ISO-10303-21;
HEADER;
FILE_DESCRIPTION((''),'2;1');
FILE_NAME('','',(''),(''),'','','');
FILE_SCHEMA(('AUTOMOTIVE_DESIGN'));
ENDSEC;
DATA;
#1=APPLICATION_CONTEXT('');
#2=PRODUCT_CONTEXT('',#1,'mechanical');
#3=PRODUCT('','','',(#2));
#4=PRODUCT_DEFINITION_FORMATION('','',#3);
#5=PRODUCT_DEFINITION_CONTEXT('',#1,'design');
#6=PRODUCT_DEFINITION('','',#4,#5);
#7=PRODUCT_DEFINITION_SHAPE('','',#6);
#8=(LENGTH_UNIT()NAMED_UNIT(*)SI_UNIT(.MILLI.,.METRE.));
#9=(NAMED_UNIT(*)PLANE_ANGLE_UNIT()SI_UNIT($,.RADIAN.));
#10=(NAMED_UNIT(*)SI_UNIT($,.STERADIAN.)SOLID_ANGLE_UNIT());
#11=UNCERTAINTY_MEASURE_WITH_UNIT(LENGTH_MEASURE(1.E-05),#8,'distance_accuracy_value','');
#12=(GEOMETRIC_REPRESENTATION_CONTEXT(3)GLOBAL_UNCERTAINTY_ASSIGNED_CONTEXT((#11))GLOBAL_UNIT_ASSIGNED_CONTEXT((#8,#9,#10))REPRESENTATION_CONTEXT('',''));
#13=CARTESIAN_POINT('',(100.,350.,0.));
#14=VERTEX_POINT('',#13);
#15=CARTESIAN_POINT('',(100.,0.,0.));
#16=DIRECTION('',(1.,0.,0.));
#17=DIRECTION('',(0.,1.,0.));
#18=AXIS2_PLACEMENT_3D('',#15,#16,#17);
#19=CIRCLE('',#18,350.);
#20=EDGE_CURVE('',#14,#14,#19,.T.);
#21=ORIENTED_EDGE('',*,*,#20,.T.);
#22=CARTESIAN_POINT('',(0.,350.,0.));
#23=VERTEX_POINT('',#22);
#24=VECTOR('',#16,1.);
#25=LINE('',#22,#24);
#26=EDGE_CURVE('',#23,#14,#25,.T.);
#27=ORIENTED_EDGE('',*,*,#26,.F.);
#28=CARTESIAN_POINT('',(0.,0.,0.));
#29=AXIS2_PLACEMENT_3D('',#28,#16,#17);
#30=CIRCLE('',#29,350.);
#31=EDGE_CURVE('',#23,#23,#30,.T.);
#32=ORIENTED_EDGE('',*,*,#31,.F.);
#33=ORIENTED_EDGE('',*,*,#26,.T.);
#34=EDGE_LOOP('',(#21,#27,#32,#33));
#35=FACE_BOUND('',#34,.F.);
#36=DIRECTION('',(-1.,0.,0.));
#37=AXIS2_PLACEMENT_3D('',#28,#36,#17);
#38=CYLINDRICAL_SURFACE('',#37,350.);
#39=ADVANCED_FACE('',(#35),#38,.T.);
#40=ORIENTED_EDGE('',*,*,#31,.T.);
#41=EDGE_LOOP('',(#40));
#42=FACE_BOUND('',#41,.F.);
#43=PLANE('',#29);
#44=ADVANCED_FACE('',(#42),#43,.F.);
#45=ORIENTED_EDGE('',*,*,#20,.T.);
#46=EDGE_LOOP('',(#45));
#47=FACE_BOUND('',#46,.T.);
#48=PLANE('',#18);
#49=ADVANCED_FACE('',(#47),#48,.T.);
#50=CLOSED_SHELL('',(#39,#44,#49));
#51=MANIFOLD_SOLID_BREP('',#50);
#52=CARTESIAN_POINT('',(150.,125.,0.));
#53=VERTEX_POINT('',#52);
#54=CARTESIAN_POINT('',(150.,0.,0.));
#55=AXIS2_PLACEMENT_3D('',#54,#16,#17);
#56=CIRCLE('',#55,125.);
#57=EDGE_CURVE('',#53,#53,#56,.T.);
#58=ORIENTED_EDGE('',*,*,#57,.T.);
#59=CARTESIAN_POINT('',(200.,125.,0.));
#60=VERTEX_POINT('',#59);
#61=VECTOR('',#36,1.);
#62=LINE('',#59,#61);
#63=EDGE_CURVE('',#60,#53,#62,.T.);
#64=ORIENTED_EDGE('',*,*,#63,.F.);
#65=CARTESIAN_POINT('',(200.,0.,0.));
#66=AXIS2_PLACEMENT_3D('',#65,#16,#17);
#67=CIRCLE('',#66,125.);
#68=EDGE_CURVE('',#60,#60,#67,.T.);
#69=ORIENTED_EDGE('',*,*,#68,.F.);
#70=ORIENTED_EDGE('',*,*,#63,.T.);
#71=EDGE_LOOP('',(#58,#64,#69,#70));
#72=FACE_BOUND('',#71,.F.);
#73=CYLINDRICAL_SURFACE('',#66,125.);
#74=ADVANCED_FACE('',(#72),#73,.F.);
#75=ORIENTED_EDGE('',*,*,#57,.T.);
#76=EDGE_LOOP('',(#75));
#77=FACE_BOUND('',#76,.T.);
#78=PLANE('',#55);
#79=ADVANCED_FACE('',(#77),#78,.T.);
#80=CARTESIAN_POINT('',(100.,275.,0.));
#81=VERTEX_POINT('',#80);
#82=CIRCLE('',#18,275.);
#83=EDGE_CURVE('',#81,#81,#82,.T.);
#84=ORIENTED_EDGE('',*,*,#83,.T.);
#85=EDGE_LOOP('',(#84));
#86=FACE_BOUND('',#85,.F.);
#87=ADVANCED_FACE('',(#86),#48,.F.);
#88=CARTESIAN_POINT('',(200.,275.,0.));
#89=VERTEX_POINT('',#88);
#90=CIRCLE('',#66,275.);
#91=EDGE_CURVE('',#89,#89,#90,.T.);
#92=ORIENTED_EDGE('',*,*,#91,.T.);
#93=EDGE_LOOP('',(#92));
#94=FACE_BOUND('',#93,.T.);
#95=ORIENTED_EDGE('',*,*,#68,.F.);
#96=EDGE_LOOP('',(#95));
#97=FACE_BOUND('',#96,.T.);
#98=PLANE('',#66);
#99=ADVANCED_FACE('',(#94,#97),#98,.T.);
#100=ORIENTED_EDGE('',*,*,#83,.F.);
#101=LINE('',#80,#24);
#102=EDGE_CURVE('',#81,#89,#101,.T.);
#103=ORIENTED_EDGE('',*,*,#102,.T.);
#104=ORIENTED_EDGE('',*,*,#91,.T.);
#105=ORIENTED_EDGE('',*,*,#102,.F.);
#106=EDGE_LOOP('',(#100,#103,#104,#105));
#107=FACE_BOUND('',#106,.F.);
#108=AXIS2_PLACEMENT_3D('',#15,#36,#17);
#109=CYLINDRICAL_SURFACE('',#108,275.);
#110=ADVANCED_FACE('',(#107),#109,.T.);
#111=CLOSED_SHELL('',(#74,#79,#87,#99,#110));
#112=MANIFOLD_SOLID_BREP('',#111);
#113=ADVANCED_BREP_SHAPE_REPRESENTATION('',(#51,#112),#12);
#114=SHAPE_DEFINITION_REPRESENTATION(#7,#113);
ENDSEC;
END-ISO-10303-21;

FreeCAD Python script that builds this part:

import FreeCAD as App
import Part
import Sketcher
Q = App.Units.Quantity

doc = App.newDocument("Part")
params = doc.addObject("Spreadsheet::Sheet", "Params")
for row, (alias, value) in enumerate([
    ("sketch1_diameter", "700 mm"),
    ("pad1_length", "100 mm"),
    ("sketch2_diameter", "550 mm"),
    ("pad2_length", "100 mm"),
    ("sketch3_diameter", "250 mm"),
    ("pocket1_length", "50 mm"),
], start=1):
    params.set(f"A{row}", alias)
    params.set(f"B{row}", "=" + value)
    params.setAlias(f"B{row}", alias)

body = doc.addObject("PartDesign::Body", "Body")

# Sketch on YZ plane
sketch1 = body.newObject("Sketcher::SketchObject", "Sketch")
sketch1.AttachmentSupport = (doc.getObject("YZ_Plane"), [""])
sketch1.MapMode = "FlatFace"
sketch1.addGeometry(Part.Circle(App.Vector(0, 0, 0), App.Vector(0, 0, 1), 350), False)
sketch1.addConstraint(Sketcher.Constraint("Coincident", 0, 3, -1, 1))
sketch1.addConstraint(Sketcher.Constraint("Diameter", 0, Q("700 mm")))
sketch1.setExpression("Constraints[1]", "Params.sketch1_diameter")
pad1 = body.newObject("PartDesign::Pad", "Pad")
pad1.Profile = sketch1
pad1.setExpression("Length", "Params.pad1_length")
body2 = doc.addObject("PartDesign::Body", "Body001")

# Sketch on YZ plane
sketch2 = body2.newObject("Sketcher::SketchObject", "Sketch001")
sketch2.AttachmentSupport = (doc.getObject("YZ_Plane001"), [""])
sketch2.MapMode = "FlatFace"
sketch2.AttachmentOffset = App.Placement(App.Vector(0, 0, 100), App.Rotation())
sketch2.addGeometry(Part.Circle(App.Vector(0, 0, 0), App.Vector(0, 0, 1), 275), False)
sketch2.addConstraint(Sketcher.Constraint("Coincident", 0, 3, -1, 1))
sketch2.addConstraint(Sketcher.Constraint("Diameter", 0, Q("550 mm")))
sketch2.setExpression("Constraints[1]", "Params.sketch2_diameter")
pad2 = body2.newObject("PartDesign::Pad", "Pad001")
pad2.Profile = sketch2
pad2.setExpression("Length", "Params.pad2_length")

# Sketch on YZ plane
sketch3 = body2.newObject("Sketcher::SketchObject", "Sketch002")
sketch3.AttachmentSupport = (doc.getObject("YZ_Plane001"), [""])
sketch3.MapMode = "FlatFace"
sketch3.AttachmentOffset = App.Placement(App.Vector(0, 0, 200), App.Rotation())
sketch3.addGeometry(Part.Circle(App.Vector(0, 0, 0), App.Vector(0, 0, 1), 125), False)
sketch3.addConstraint(Sketcher.Constraint("Coincident", 0, 3, -1, 1))
sketch3.addConstraint(Sketcher.Constraint("Diameter", 0, Q("250 mm")))
sketch3.setExpression("Constraints[1]", "Params.sketch3_diameter")
pocket1 = body2.newObject("PartDesign::Pocket", "Pocket")
pocket1.Profile = sketch3
pocket1.setExpression("Length", "Params.pocket1_length")

doc.recompute()
